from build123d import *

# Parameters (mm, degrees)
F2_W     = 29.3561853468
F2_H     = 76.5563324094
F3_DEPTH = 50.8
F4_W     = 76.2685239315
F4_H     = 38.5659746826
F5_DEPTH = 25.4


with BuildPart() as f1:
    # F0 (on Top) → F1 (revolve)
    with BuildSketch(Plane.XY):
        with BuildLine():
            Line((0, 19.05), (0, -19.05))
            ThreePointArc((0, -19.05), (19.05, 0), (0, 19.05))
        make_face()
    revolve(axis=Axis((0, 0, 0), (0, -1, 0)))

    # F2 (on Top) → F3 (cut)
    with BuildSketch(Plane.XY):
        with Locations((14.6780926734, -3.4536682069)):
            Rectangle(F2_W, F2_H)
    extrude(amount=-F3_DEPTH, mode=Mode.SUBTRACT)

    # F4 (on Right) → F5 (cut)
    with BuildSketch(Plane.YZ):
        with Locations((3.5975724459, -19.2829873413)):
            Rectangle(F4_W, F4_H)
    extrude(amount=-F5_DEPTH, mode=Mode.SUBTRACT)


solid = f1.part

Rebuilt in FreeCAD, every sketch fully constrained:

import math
import FreeCAD as App
import Part
import Sketcher
Q = App.Units.Quantity


def add_polygon(sketch, points):
    """Adds a closed chain of lines whose ends are joined by coincident constraints."""
    first, n = sketch.GeometryCount, len(points)
    for a, b in zip(points, points[1:] + points[:1]):
        sketch.addGeometry(Part.LineSegment(App.Vector(*a, 0), App.Vector(*b, 0)), False)
    for i in range(n):
        sketch.addConstraint(Sketcher.Constraint("Coincident", first + i, 2, first + (i + 1) % n, 1))

doc = App.newDocument("Part")
body = doc.addObject("PartDesign::Body", "Body")

sketch1 = body.newObject("Sketcher::SketchObject", "Sketch")
sketch1.AttachmentSupport = (doc.getObject("XY_Plane"), [""])
sketch1.MapMode = "FlatFace"
sketch1.addGeometry([
    Part.LineSegment(App.Vector(0, 19.05, 0), App.Vector(0, -19.05, 0)),
    Part.ArcOfCircle(Part.Circle(App.Vector(0, 0, 0), App.Vector(0, 0, 1), 19.05), math.radians(-90), math.radians(90)),
], False)
sketch1.addConstraint([
    Sketcher.Constraint("Coincident", 0, 1, 1, 2),
    Sketcher.Constraint("Coincident", 1, 1, 0, 2),
    Sketcher.Constraint("Vertical", 0),
    Sketcher.Constraint("Coincident", 1, 3, -1, 1),
    Sketcher.Constraint("PointOnObject", 0, 1, -2),
    Sketcher.Constraint("Radius", 1, Q("0.75 in")),
])
revolution = body.newObject("PartDesign::Revolution", "Revolution")
revolution.Profile = sketch1
revolution.ReferenceAxis = (sketch1, ["V_Axis"])
revolution.Angle = 360

sketch2 = body.newObject("Sketcher::SketchObject", "Sketch001")
sketch2.AttachmentSupport = (doc.getObject("XY_Plane"), [""])
sketch2.MapMode = "FlatFace"
add_polygon(sketch2, [(0, 34.824498), (0, -41.731834), (29.356185, -41.731834), (29.356185, 34.824498)])
sketch2.addConstraint([
    Sketcher.Constraint("Vertical", 0),
    Sketcher.Constraint("Horizontal", 1),
    Sketcher.Constraint("Vertical", 2),
    Sketcher.Constraint("Horizontal", 3),
    Sketcher.Constraint("PointOnObject", 0, 2, -2),
    Sketcher.Constraint("DistanceX", 1, 1, 1, 2, 29.356185),
    Sketcher.Constraint("DistanceY", 0, 2, 0, 1, 76.556332),
    Sketcher.Constraint("DistanceY", 0, 2, -1, 1, 41.731834),
])
pocket1 = body.newObject("PartDesign::Pocket", "Pocket")
pocket1.Profile = sketch2
pocket1.Length = Q("2 in")

sketch3 = body.newObject("Sketcher::SketchObject", "Sketch002")
sketch3.AttachmentSupport = (doc.getObject("YZ_Plane"), [""])
sketch3.MapMode = "FlatFace"
add_polygon(sketch3, [(-34.53669, 0), (-34.53669, -38.565975), (41.731834, -38.565975), (41.731834, 0)])
sketch3.addConstraint([
    Sketcher.Constraint("Vertical", 0),
    Sketcher.Constraint("Horizontal", 1),
    Sketcher.Constraint("Vertical", 2),
    Sketcher.Constraint("Horizontal", 3),
    Sketcher.Constraint("PointOnObject", 2, 2, -1),
    Sketcher.Constraint("DistanceX", 1, 1, 1, 2, 76.268524),
    Sketcher.Constraint("DistanceY", 0, 2, 0, 1, 38.565975),
    Sketcher.Constraint("DistanceX", 0, 2, -1, 1, 34.53669),
])
pocket2 = body.newObject("PartDesign::Pocket", "Pocket001")
pocket2.Profile = sketch3
pocket2.Length = Q("1 in")

doc.recompute()
